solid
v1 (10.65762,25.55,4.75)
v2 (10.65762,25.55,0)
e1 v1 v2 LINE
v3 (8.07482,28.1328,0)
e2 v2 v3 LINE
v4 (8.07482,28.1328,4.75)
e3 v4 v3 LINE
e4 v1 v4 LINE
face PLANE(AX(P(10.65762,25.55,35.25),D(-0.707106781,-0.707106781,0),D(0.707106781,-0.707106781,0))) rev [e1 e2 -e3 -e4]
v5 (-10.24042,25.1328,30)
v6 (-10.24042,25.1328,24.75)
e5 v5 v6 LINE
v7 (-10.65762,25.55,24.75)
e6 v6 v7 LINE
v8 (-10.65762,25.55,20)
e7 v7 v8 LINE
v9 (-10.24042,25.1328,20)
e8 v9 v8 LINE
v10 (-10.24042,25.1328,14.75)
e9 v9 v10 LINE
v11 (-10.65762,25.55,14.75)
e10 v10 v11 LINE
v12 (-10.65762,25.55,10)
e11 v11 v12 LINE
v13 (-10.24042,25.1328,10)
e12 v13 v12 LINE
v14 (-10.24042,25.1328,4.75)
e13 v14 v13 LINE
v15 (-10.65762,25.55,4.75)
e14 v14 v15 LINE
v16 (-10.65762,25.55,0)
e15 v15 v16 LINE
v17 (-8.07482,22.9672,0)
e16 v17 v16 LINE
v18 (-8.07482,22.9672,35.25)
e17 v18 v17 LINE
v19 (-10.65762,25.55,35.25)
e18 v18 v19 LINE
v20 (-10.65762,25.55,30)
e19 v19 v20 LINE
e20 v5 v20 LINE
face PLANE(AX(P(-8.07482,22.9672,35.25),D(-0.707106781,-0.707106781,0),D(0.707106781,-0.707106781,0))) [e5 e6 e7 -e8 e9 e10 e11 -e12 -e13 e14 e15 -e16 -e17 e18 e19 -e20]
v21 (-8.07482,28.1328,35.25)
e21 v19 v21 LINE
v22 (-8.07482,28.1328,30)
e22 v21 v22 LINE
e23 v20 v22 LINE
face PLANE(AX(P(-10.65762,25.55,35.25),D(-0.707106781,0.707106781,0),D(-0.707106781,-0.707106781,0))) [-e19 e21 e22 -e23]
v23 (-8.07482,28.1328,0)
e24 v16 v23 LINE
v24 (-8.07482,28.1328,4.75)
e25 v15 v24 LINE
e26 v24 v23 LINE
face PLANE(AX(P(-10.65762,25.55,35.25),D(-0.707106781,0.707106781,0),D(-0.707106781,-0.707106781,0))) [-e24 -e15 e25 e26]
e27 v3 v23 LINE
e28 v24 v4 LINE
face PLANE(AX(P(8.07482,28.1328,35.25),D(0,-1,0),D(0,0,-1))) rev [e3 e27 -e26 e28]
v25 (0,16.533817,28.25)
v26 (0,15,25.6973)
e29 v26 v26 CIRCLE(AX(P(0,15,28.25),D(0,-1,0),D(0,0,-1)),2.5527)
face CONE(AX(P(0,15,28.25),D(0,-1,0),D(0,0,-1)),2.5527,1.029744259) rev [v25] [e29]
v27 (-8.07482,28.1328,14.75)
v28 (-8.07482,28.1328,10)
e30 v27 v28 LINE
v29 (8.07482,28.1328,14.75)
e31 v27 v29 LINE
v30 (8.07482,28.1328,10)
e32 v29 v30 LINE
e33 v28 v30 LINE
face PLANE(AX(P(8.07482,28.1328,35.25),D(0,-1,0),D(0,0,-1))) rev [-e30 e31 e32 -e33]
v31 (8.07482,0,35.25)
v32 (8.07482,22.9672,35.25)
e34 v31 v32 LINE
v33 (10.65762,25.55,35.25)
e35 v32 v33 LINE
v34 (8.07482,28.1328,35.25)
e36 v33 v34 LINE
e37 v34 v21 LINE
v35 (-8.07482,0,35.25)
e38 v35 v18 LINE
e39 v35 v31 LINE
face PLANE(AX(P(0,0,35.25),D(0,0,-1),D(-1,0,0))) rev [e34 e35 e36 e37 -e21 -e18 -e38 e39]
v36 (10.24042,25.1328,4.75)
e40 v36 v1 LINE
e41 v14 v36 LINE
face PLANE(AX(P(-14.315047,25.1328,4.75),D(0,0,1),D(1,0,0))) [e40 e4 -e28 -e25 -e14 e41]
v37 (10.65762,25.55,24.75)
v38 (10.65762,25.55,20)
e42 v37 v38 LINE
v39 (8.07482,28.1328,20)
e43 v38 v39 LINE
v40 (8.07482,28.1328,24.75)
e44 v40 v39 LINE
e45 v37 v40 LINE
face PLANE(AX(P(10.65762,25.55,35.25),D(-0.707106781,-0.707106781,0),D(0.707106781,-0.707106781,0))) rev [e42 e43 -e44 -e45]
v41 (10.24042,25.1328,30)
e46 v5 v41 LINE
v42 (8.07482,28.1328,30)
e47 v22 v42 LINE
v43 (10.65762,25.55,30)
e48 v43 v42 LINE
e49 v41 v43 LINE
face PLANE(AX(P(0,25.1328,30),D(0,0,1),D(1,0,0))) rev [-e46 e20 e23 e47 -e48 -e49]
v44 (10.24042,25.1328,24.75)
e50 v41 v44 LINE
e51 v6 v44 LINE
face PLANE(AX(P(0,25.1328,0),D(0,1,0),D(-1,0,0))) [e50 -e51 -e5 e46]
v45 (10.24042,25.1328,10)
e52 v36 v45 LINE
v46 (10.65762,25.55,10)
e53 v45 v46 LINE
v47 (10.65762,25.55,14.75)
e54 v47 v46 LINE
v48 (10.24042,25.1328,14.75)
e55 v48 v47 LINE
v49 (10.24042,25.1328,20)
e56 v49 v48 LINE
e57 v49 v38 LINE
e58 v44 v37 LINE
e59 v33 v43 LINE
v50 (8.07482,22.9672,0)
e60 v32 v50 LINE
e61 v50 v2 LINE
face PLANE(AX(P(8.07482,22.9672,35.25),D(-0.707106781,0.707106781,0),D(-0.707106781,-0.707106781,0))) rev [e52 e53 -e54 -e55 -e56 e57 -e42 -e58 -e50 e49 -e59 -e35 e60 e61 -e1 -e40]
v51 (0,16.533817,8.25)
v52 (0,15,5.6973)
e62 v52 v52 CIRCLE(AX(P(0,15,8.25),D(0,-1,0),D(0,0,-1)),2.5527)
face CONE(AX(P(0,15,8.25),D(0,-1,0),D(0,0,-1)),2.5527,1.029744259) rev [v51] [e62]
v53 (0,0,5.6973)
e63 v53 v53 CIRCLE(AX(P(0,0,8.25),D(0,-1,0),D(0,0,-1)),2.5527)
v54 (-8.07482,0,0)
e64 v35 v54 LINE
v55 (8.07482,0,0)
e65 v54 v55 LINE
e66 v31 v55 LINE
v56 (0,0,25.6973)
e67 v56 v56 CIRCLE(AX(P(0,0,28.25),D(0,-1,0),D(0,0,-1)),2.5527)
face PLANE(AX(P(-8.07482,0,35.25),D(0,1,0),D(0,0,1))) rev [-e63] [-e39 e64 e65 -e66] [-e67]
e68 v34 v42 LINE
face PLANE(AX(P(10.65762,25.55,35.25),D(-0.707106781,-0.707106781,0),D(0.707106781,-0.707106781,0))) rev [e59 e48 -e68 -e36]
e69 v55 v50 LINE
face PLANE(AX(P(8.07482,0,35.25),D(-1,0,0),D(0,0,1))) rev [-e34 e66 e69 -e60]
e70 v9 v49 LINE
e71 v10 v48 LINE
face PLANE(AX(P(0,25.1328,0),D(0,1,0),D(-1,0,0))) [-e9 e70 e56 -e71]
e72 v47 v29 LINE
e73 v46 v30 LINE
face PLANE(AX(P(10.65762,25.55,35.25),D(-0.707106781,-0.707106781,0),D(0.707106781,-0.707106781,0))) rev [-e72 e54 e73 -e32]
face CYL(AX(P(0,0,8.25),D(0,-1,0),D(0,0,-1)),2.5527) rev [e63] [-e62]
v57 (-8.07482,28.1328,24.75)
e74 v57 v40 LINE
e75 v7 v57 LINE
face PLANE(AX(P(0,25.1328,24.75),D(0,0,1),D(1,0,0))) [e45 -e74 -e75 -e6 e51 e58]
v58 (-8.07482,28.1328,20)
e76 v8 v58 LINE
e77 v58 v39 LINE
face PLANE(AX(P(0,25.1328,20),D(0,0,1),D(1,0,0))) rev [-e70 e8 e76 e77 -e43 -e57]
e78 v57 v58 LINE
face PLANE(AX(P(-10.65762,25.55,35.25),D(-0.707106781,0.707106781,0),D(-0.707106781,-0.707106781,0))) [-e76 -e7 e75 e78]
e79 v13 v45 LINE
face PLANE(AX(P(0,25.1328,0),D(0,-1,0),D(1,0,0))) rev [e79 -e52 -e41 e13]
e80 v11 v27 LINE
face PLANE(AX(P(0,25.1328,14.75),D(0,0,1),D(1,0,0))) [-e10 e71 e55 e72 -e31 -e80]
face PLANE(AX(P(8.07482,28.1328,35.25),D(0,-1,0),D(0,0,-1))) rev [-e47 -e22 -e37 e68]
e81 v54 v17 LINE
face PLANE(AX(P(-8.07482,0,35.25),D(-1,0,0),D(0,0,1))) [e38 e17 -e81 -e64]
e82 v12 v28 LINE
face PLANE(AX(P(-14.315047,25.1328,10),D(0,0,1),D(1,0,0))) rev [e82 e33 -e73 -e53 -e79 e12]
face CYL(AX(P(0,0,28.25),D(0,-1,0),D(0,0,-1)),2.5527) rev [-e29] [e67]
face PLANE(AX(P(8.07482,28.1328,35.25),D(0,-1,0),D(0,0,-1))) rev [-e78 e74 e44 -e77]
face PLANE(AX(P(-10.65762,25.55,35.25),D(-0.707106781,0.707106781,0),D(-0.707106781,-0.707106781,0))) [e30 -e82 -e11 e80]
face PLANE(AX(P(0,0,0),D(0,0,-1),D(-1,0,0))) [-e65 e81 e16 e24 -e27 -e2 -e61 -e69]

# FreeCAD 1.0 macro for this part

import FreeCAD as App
import Part
import Sketcher

doc = App.newDocument("Part")
body = doc.addObject("PartDesign::Body", "Body")

# Sketch on XY plane
sketch1 = doc.addObject("Sketcher::SketchObject", "Sketch")
body.addObject(sketch1)
sketch1.AttachmentSupport = (doc.XY_Plane, [""])
sketch1.MapMode = "FlatFace"
sketch1.addGeometry([
    Part.LineSegment(App.Vector(-8.1, 0, 0), App.Vector(8.1, 0, 0)),  # 0
    Part.LineSegment(App.Vector(8.1, 0, 0), App.Vector(8.1, 23, 0)),  # 1
    Part.LineSegment(App.Vector(8.1, 23, 0), App.Vector(10.7, 25.6, 0)),  # 2
    Part.LineSegment(App.Vector(10.7, 25.6, 0), App.Vector(8.1, 28.1, 0)),  # 3
    Part.LineSegment(App.Vector(8.1, 28.1, 0), App.Vector(-8.1, 28.1, 0)),  # 4
    Part.LineSegment(App.Vector(-8.1, 28.1, 0), App.Vector(-10.7, 25.6, 0)),  # 5
    Part.LineSegment(App.Vector(-10.7, 25.6, 0), App.Vector(-8.1, 23, 0)),  # 6
    Part.LineSegment(App.Vector(-8.1, 23, 0), App.Vector(-8.1, 0, 0)),  # 7
], False)
sketch1.addConstraint([
    Sketcher.Constraint("Coincident", 0, 2, 1, 1),
    Sketcher.Constraint("Coincident", 1, 2, 2, 1),
    Sketcher.Constraint("Coincident", 2, 2, 3, 1),
    Sketcher.Constraint("Coincident", 3, 2, 4, 1),
    Sketcher.Constraint("Coincident", 4, 2, 5, 1),
    Sketcher.Constraint("Coincident", 5, 2, 6, 1),
    Sketcher.Constraint("Coincident", 6, 2, 7, 1),
    Sketcher.Constraint("Coincident", 7, 2, 0, 1),
    Sketcher.Constraint("Horizontal", 0),
    Sketcher.Constraint("Vertical", 1),
    Sketcher.Constraint("Horizontal", 4),
    Sketcher.Constraint("Vertical", 7),
    Sketcher.Constraint("Symmetric", 0, 2, 7, 2, -1, 1),
    Sketcher.Constraint("Symmetric", 2, 2, 5, 2, -2),
    Sketcher.Constraint("Perpendicular", 2, 3),
    Sketcher.Constraint("Perpendicular", 3, 5),
    Sketcher.Constraint("Perpendicular", 5, 6),
    Sketcher.Constraint("Horizontal", 1, 2, 6, 2),
    Sketcher.Constraint("Vertical", 1, 2, 3, 2),
    Sketcher.Constraint("DistanceY", -1, 1, 2, 2, 25.55),
    Sketcher.Constraint("DistanceY", 1, 1, 1, 2, 22.9672),
    Sketcher.Constraint("DistanceX", 0, 1, 0, 2, 16.149639),
])
pad1 = doc.addObject("PartDesign::Pad", "Pad")
body.addObject(pad1)
pad1.Profile = sketch1
pad1.Length = 35.25

# Sketch on XZ plane
sketch2 = doc.addObject("Sketcher::SketchObject", "Sketch001")
body.addObject(sketch2)
sketch2.AttachmentSupport = (doc.XZ_Plane, [""])
sketch2.MapMode = "FlatFace"
sketch2.addGeometry([
    Part.Circle(App.Vector(0, 8.2, 0), App.Vector(0, 0, 1), 2.6),
    Part.Circle(App.Vector(0, 28.2, 0), App.Vector(0, 0, 1), 2.6),
], False)
sketch2.addConstraint([
    Sketcher.Constraint("Equal", 0, 1),
    Sketcher.Constraint("PointOnObject", 0, 3, -2),
    Sketcher.Constraint("PointOnObject", 1, 3, -2),
    Sketcher.Constraint("DistanceY", 0, 3, 1, 3, 20.0),
    Sketcher.Constraint("Diameter", 0, 5.1054),
    Sketcher.Constraint("DistanceY", -1, 1, 0, 3, 8.25),
])
doc.recompute()
hole = doc.addObject("PartDesign::Hole", "Hole")
body.addObject(hole)
hole.Profile = sketch2
hole.ThreadType = "None"
hole.Diameter = 5.1054
hole.DepthType = "Dimension"
hole.Depth = 15
hole.DrillPoint = "Angled"
hole.DrillPointAngle = 118

# Sketch on XZ plane
sketch3 = doc.addObject("Sketcher::SketchObject", "Sketch002")
body.addObject(sketch3)
sketch3.AttachmentSupport = (doc.XZ_Plane, [""])
sketch3.MapMode = "FlatFace"
sketch3.AttachmentOffset = App.Placement(App.Vector(0, 0, -28.1328), App.Rotation())
sketch3.addGeometry([
    Part.LineSegment(App.Vector(-14, 15, 0), App.Vector(-14, 20, 0)),  # 0
    Part.LineSegment(App.Vector(-14, 20, 0), App.Vector(14, 20, 0)),  # 1
    Part.LineSegment(App.Vector(14, 20, 0), App.Vector(14, 15, 0)),  # 2
    Part.LineSegment(App.Vector(14, 15, 0), App.Vector(-14, 15, 0)),  # 3
    Part.LineSegment(App.Vector(-14, 25, 0), App.Vector(-14, 30, 0)),  # 4
    Part.LineSegment(App.Vector(-14, 30, 0), App.Vector(14, 30, 0)),  # 5
    Part.LineSegment(App.Vector(14, 30, 0), App.Vector(14, 25, 0)),  # 6
    Part.LineSegment(App.Vector(14, 25, 0), App.Vector(-14, 25, 0)),  # 7
    Part.LineSegment(App.Vector(-14, 5, 0), App.Vector(-14, 10, 0)),  # 8
    Part.LineSegment(App.Vector(-14, 10, 0), App.Vector(14, 10, 0)),  # 9
    Part.LineSegment(App.Vector(14, 10, 0), App.Vector(14, 5, 0)),  # 10
    Part.LineSegment(App.Vector(14, 5, 0), App.Vector(-14, 5, 0)),  # 11
], False)
sketch3.addConstraint([
    Sketcher.Constraint("Coincident", 0, 2, 1, 1),
    Sketcher.Constraint("Coincident", 1, 2, 2, 1),
    Sketcher.Constraint("Coincident", 2, 2, 3, 1),
    Sketcher.Constraint("Coincident", 3, 2, 0, 1),
    Sketcher.Constraint("Coincident", 4, 2, 5, 1),
    Sketcher.Constraint("Coincident", 5, 2, 6, 1),
    Sketcher.Constraint("Coincident", 6, 2, 7, 1),
    Sketcher.Constraint("Coincident", 7, 2, 4, 1),
    Sketcher.Constraint("Coincident", 8, 2, 9, 1),
    Sketcher.Constraint("Coincident", 9, 2, 10, 1),
    Sketcher.Constraint("Coincident", 10, 2, 11, 1),
    Sketcher.Constraint("Coincident", 11, 2, 8, 1),
    Sketcher.Constraint("Vertical", 0),
    Sketcher.Constraint("Horizontal", 1),
    Sketcher.Constraint("Vertical", 2),
    Sketcher.Constraint("Horizontal", 3),
    Sketcher.Constraint("Vertical", 4),
    Sketcher.Constraint("Horizontal", 5),
    Sketcher.Constraint("Vertical", 6),
    Sketcher.Constraint("Horizontal", 7),
    Sketcher.Constraint("Vertical", 8),
    Sketcher.Constraint("Horizontal", 9),
    Sketcher.Constraint("Vertical", 10),
    Sketcher.Constraint("Horizontal", 11),
    Sketcher.Constraint("Vertical", 3, 2, 4, 2),
    Sketcher.Constraint("Vertical", 2, 2, 5, 2),
    Sketcher.Constraint("Vertical", 7, 2, 8, 2),
    Sketcher.Constraint("Vertical", 6, 2, 9, 2),
    Sketcher.Constraint("Equal", 2, 4),
    Sketcher.Constraint("Equal", 6, 8),
    Sketcher.Constraint("DistanceY", -1, 1, 0, 2, 20.0),
    Sketcher.Constraint("DistanceY", -1, 1, 4, 2, 30.0),
    Sketcher.Constraint("DistanceY", -1, 1, 8, 2, 10.0),
    Sketcher.Constraint("DistanceY", 0, 1, 0, 2, 5.25),
    Sketcher.Constraint("DistanceX", 1, 1, 1, 2, 28.630095),
    Sketcher.Constraint("DistanceX", 0, 2, -1, 1, 14.315047),
])
pocket1 = doc.addObject("PartDesign::Pocket", "Pocket")
body.addObject(pocket1)
pocket1.Profile = sketch3
pocket1.Length = 3
pocket1.Reversed = True

doc.recompute()
